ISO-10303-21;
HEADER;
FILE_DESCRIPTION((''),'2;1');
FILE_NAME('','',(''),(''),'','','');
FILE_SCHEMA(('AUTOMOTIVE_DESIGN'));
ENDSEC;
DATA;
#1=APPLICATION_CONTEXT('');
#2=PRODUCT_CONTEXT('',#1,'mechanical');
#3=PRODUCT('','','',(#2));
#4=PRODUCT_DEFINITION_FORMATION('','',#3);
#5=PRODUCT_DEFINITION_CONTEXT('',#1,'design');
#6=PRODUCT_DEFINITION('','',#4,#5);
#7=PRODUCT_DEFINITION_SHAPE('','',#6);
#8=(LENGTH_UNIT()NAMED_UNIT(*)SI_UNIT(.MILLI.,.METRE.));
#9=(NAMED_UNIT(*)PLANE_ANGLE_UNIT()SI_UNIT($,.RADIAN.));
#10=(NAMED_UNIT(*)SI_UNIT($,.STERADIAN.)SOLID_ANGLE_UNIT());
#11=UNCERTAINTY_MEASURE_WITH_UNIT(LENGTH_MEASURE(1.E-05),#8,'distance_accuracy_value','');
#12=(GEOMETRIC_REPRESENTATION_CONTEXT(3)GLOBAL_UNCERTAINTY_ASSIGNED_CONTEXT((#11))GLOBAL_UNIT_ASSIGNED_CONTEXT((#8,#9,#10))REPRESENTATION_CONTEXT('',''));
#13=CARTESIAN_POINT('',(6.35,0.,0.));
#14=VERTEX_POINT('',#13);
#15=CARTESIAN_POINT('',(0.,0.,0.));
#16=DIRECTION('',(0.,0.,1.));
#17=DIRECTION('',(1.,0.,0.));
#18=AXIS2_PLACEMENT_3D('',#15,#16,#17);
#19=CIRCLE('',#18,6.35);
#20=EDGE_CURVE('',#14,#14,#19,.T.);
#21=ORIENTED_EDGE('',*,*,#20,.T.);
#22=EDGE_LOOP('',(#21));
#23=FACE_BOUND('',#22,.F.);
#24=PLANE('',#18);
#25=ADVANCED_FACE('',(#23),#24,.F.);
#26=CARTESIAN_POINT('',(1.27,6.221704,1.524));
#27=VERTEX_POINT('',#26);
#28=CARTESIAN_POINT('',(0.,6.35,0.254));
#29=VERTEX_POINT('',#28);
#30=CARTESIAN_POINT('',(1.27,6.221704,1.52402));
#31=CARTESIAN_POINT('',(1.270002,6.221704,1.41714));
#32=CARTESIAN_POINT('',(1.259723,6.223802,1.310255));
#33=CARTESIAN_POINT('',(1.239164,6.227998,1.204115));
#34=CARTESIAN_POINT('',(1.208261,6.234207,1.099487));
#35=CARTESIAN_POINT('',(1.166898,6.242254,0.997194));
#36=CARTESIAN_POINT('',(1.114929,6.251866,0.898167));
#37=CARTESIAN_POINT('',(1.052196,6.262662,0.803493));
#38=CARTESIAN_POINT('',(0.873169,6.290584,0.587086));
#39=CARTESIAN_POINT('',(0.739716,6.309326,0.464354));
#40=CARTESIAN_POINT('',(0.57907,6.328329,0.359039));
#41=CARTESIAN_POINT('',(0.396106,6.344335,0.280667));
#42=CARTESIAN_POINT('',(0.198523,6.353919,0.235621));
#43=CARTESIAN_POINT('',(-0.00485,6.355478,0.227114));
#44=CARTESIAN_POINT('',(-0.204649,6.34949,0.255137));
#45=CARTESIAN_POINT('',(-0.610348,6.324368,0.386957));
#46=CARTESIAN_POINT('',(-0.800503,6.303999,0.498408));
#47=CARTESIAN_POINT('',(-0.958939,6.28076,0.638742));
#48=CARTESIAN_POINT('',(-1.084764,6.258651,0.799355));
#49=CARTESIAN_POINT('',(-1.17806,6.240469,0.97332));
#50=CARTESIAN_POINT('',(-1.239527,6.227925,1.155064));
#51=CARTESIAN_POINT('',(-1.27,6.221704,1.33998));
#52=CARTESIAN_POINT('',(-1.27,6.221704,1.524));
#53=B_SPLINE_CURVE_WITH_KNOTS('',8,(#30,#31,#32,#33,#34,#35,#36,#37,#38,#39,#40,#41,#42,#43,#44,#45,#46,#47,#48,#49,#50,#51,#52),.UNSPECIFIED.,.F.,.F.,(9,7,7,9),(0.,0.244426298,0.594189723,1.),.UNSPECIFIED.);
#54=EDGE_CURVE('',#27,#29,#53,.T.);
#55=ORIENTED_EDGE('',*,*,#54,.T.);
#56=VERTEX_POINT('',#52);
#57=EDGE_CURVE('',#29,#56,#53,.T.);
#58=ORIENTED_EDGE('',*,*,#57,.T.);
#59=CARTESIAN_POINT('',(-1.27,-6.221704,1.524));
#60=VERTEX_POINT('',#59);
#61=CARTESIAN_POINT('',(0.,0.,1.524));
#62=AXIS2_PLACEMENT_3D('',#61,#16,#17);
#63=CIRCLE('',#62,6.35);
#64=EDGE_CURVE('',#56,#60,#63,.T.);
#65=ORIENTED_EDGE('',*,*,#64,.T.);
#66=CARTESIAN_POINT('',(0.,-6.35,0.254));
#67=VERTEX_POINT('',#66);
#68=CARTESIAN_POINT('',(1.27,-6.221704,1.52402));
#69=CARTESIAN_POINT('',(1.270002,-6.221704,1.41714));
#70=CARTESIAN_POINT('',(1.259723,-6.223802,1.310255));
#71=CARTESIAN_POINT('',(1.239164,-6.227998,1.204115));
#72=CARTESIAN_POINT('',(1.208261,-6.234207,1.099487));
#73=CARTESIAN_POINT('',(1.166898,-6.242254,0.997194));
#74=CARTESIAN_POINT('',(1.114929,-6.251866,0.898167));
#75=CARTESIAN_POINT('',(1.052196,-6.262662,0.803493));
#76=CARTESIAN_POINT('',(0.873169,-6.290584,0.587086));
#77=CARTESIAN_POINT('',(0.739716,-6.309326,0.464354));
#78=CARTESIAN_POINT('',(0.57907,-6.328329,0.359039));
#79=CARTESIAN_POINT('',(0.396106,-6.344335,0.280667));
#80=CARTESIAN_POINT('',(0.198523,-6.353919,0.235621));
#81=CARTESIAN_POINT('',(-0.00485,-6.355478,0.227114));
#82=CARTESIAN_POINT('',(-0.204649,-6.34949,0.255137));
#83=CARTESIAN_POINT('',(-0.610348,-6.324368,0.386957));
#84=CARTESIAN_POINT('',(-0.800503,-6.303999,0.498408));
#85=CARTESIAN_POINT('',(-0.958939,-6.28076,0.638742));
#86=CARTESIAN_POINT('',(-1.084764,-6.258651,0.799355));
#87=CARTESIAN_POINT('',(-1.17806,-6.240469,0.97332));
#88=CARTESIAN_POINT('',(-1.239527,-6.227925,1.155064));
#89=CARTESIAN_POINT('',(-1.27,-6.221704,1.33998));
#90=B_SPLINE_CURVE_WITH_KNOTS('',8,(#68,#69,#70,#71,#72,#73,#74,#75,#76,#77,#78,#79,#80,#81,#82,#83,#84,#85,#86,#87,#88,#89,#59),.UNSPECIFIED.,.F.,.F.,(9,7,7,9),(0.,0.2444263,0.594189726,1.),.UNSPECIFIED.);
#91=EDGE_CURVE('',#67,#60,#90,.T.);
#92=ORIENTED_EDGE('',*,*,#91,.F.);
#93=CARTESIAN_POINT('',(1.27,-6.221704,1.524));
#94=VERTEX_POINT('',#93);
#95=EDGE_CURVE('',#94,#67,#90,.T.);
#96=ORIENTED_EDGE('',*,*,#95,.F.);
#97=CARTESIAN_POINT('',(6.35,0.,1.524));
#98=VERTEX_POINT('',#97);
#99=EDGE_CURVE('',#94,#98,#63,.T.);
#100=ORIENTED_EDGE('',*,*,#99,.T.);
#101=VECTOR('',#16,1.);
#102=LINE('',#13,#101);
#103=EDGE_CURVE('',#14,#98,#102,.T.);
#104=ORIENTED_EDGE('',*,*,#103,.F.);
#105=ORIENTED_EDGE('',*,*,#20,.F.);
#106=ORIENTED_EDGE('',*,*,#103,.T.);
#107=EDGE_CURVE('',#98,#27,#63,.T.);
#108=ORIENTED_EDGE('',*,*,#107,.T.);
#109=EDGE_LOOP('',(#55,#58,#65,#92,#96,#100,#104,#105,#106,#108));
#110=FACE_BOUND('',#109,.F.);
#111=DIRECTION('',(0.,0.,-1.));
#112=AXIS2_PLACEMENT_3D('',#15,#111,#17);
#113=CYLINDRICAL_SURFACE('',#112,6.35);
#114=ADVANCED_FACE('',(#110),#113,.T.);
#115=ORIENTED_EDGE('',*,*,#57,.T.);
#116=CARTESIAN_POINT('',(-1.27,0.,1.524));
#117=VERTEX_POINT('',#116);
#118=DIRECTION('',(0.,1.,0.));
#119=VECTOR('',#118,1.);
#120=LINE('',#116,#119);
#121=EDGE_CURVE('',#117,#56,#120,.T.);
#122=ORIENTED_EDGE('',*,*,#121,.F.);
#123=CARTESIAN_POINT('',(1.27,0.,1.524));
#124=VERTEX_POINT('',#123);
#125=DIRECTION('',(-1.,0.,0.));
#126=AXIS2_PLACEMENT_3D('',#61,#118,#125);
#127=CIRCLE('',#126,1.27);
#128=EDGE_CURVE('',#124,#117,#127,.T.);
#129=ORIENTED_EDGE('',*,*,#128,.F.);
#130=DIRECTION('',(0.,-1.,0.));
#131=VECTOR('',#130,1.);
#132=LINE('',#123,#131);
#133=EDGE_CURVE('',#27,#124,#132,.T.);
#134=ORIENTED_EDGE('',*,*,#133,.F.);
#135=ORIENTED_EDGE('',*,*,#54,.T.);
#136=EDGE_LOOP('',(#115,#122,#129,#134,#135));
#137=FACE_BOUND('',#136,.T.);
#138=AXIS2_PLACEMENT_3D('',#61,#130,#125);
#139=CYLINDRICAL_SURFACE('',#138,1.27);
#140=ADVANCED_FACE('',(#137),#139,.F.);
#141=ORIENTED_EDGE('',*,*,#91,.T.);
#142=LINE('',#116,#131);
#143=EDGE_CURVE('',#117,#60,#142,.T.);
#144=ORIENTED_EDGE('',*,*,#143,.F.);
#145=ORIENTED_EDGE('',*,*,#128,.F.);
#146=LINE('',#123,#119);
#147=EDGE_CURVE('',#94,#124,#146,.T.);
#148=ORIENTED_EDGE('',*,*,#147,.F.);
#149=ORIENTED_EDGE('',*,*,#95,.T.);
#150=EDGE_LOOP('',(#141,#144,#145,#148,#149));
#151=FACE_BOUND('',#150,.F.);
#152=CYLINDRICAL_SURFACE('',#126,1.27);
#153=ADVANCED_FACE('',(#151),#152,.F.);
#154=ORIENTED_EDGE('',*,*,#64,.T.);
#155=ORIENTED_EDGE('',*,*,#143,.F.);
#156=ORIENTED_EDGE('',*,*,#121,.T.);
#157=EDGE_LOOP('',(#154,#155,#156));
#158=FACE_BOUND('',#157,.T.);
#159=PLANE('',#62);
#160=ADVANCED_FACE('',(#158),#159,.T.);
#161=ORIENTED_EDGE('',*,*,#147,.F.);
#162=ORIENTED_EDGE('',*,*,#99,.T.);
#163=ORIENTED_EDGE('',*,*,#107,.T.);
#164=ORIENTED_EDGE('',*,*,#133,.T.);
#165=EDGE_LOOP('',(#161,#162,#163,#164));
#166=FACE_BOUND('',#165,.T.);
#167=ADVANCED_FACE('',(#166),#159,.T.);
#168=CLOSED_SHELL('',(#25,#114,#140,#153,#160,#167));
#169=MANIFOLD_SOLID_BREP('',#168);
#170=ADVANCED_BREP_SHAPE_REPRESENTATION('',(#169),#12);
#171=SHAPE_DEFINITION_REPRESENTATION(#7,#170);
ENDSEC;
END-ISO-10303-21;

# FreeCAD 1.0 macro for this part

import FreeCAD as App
import Part
import Sketcher
Q = App.Units.Quantity

doc = App.newDocument("Part")
params = doc.addObject("Spreadsheet::Sheet", "Params")
for row, (alias, value) in enumerate([
    ("sketch1_diameter", "0.5 in"),
    ("pad1_length", "0.06 in"),
    ("sketch2_diameter", "0.1 in"),
    ("pocket1_length", "0.5 in"),
], start=1):
    params.set(f"A{row}", alias)
    params.set(f"B{row}", "=" + value)
    params.setAlias(f"B{row}", alias)

body = doc.addObject("PartDesign::Body", "Body")

# Sketch on XY plane
sketch1 = doc.addObject("Sketcher::SketchObject", "Sketch")
body.addObject(sketch1)
sketch1.AttachmentSupport = (doc.XY_Plane, [""])
sketch1.MapMode = "FlatFace"
sketch1.addGeometry(Part.Circle(App.Vector(0, 0, 0), App.Vector(0, 0, 1), 6), False)
sketch1.addConstraint([
    Sketcher.Constraint("Coincident", 0, 3, -1, 1),
    Sketcher.Constraint("Diameter", 0, Q("0.5 in")),
])
sketch1.setExpression("Constraints[1]", "Params.sketch1_diameter")
pad1 = doc.addObject("PartDesign::Pad", "Pad")
body.addObject(pad1)
pad1.Profile = sketch1
pad1.setExpression("Length", "Params.pad1_length")

# Sketch on XZ plane
sketch2 = doc.addObject("Sketcher::SketchObject", "Sketch001")
body.addObject(sketch2)
sketch2.AttachmentSupport = (doc.XZ_Plane, [""])
sketch2.MapMode = "FlatFace"
sketch2.addGeometry(Part.Circle(App.Vector(0, 1.5, 0), App.Vector(0, 0, 1), 1.3), False)
sketch2.addConstraint([
    Sketcher.Constraint("PointOnObject", 0, 3, -2),
    Sketcher.Constraint("Diameter", 0, Q("0.1 in")),
    Sketcher.Constraint("DistanceY", -1, 1, 0, 3, Q("0.06 in")),
])
sketch2.setExpression("Constraints[1]", "Params.sketch2_diameter")
pocket1 = doc.addObject("PartDesign::Pocket", "Pocket")
body.addObject(pocket1)
pocket1.Profile = sketch2
pocket1.setExpression("Length", "Params.pocket1_length")
pocket1.Midplane = True

doc.recompute()
